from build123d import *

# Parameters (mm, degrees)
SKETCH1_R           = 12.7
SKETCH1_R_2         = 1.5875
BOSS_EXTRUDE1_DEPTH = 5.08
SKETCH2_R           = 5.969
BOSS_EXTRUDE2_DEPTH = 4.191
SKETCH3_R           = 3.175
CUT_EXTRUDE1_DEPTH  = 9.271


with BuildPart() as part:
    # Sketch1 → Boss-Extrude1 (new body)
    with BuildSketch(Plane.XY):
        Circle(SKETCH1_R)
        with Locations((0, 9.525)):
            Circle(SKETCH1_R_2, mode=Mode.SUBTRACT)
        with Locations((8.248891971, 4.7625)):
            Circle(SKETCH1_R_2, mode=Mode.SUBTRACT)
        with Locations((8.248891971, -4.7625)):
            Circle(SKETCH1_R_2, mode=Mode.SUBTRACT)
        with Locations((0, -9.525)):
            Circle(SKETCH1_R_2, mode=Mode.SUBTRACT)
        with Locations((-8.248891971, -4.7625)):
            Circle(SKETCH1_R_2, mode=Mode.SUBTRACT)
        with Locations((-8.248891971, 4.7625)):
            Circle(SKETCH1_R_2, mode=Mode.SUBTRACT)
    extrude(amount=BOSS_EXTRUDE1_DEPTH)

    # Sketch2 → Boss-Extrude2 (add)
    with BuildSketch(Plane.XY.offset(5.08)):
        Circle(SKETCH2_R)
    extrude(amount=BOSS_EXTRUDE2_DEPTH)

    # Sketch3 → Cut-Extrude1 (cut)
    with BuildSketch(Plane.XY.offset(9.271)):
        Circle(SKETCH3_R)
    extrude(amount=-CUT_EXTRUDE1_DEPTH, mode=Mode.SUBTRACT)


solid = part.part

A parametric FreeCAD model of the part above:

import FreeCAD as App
import Part
import Sketcher
from FreeCAD import Vector
Q = App.Units.Quantity

doc = App.newDocument("Part")
params = doc.addObject("Spreadsheet::Sheet", "Params")
for row, (alias, value) in enumerate([
    ("sketch1_diameter", "1 in"),
    ("sketch1_diameter2", "0.125 in"),
    ("pad1_length", "0.2 in"),
    ("sketch2_diameter", "0.47 in"),
    ("pad2_length", "0.165 in"),
    ("sketch3_diameter", "0.25 in"),
    ("pocket1_length", "0.365 in"),
], start=1):
    params.set(f"A{row}", alias)
    params.set(f"B{row}", "=" + value)
    params.setAlias(f"B{row}", alias)

body = doc.addObject("PartDesign::Body", "Body")

sketch1 = doc.addObject("Sketcher::SketchObject", "Sketch")
body.addObject(sketch1)
sketch1.AttachmentSupport = (doc.XY_Plane, [""])
sketch1.MapMode = "FlatFace"
sketch1.addGeometry(Part.Circle(Vector(0, 0, 0), Vector(0, 0, 1), 12.7), False)
sketch1.addGeometry(Part.Circle(Vector(-8.248892, -4.7625, 0), Vector(0, 0, 1), 1.5875), False)
sketch1.addGeometry(Part.Circle(Vector(0, -9.525, 0), Vector(0, 0, 1), 1.5875), False)
sketch1.addGeometry(Part.Circle(Vector(8.248892, -4.7625, 0), Vector(0, 0, 1), 1.5875), False)
sketch1.addGeometry(Part.Circle(Vector(-8.248892, 4.7625, 0), Vector(0, 0, 1), 1.5875), False)
sketch1.addGeometry(Part.Circle(Vector(8.248892, 4.7625, 0), Vector(0, 0, 1), 1.5875), False)
sketch1.addGeometry(Part.Circle(Vector(0, 9.525, 0), Vector(0, 0, 1), 1.5875), False)
sketch1.addConstraint(Sketcher.Constraint("Coincident", 0, 3, -1, 1))
sketch1.addConstraint(Sketcher.Constraint("Equal", 1, 2))
sketch1.addConstraint(Sketcher.Constraint("Equal", 2, 3))
sketch1.addConstraint(Sketcher.Constraint("Equal", 3, 4))
sketch1.addConstraint(Sketcher.Constraint("Equal", 4, 5))
sketch1.addConstraint(Sketcher.Constraint("Equal", 5, 6))
sketch1.addConstraint(Sketcher.Constraint("Symmetric", 3, 3, 4, 3, -1, 1))
sketch1.addConstraint(Sketcher.Constraint("Symmetric", 1, 3, 5, 3, -1, 1))
sketch1.addConstraint(Sketcher.Constraint("Symmetric", 2, 3, 6, 3, -1, 1))
sketch1.addConstraint(Sketcher.Constraint("Symmetric", 1, 3, 3, 3, -2))
sketch1.addConstraint(Sketcher.Constraint("PointOnObject", 2, 3, -2))
sketch1.addConstraint(Sketcher.Constraint("Diameter", 0, Q("1 in")))
sketch1.addConstraint(Sketcher.Constraint("Diameter", 1, Q("0.125 in")))
sketch1.addConstraint(Sketcher.Constraint("DistanceY", 1, 3, -1, 1, Q("0.1875 in")))
sketch1.addConstraint(Sketcher.Constraint("DistanceY", 2, 3, -1, 1, Q("0.375 in")))
sketch1.addConstraint(Sketcher.Constraint("DistanceX", 1, 3, -1, 1, Q("8.248892 mm")))
sketch1.setExpression("Constraints[11]", "Params.sketch1_diameter")
sketch1.setExpression("Constraints[12]", "Params.sketch1_diameter2")
pad1 = doc.addObject("PartDesign::Pad", "Pad")
body.addObject(pad1)
pad1.Profile = sketch1
pad1.setExpression("Length", "Params.pad1_length")

sketch2 = doc.addObject("Sketcher::SketchObject", "Sketch001")
body.addObject(sketch2)
sketch2.AttachmentSupport = (doc.XY_Plane, [""])
sketch2.MapMode = "FlatFace"
sketch2.AttachmentOffset = App.Placement(Vector(0, 0, 0.2 * 25.4), App.Rotation())
sketch2.addGeometry(Part.Circle(Vector(0, 0, 0), Vector(0, 0, 1), 5.969), False)
sketch2.addConstraint(Sketcher.Constraint("Coincident", 0, 3, -1, 1))
sketch2.addConstraint(Sketcher.Constraint("Diameter", 0, Q("0.47 in")))
sketch2.setExpression("Constraints[1]", "Params.sketch2_diameter")
pad2 = doc.addObject("PartDesign::Pad", "Pad001")
body.addObject(pad2)
pad2.Profile = sketch2
pad2.setExpression("Length", "Params.pad2_length")

sketch3 = doc.addObject("Sketcher::SketchObject", "Sketch002")
body.addObject(sketch3)
sketch3.AttachmentSupport = (doc.XY_Plane, [""])
sketch3.MapMode = "FlatFace"
sketch3.AttachmentOffset = App.Placement(Vector(0, 0, 0.365 * 25.4), App.Rotation())
sketch3.addGeometry(Part.Circle(Vector(0, 0, 0), Vector(0, 0, 1), 3.175), False)
sketch3.addConstraint(Sketcher.Constraint("Coincident", 0, 3, -1, 1))
sketch3.addConstraint(Sketcher.Constraint("Diameter", 0, Q("0.25 in")))
sketch3.setExpression("Constraints[1]", "Params.sketch3_diameter")
pocket1 = doc.addObject("PartDesign::Pocket", "Pocket")
body.addObject(pocket1)
pocket1.Profile = sketch3
pocket1.setExpression("Length", "Params.pocket1_length")

doc.recompute()
